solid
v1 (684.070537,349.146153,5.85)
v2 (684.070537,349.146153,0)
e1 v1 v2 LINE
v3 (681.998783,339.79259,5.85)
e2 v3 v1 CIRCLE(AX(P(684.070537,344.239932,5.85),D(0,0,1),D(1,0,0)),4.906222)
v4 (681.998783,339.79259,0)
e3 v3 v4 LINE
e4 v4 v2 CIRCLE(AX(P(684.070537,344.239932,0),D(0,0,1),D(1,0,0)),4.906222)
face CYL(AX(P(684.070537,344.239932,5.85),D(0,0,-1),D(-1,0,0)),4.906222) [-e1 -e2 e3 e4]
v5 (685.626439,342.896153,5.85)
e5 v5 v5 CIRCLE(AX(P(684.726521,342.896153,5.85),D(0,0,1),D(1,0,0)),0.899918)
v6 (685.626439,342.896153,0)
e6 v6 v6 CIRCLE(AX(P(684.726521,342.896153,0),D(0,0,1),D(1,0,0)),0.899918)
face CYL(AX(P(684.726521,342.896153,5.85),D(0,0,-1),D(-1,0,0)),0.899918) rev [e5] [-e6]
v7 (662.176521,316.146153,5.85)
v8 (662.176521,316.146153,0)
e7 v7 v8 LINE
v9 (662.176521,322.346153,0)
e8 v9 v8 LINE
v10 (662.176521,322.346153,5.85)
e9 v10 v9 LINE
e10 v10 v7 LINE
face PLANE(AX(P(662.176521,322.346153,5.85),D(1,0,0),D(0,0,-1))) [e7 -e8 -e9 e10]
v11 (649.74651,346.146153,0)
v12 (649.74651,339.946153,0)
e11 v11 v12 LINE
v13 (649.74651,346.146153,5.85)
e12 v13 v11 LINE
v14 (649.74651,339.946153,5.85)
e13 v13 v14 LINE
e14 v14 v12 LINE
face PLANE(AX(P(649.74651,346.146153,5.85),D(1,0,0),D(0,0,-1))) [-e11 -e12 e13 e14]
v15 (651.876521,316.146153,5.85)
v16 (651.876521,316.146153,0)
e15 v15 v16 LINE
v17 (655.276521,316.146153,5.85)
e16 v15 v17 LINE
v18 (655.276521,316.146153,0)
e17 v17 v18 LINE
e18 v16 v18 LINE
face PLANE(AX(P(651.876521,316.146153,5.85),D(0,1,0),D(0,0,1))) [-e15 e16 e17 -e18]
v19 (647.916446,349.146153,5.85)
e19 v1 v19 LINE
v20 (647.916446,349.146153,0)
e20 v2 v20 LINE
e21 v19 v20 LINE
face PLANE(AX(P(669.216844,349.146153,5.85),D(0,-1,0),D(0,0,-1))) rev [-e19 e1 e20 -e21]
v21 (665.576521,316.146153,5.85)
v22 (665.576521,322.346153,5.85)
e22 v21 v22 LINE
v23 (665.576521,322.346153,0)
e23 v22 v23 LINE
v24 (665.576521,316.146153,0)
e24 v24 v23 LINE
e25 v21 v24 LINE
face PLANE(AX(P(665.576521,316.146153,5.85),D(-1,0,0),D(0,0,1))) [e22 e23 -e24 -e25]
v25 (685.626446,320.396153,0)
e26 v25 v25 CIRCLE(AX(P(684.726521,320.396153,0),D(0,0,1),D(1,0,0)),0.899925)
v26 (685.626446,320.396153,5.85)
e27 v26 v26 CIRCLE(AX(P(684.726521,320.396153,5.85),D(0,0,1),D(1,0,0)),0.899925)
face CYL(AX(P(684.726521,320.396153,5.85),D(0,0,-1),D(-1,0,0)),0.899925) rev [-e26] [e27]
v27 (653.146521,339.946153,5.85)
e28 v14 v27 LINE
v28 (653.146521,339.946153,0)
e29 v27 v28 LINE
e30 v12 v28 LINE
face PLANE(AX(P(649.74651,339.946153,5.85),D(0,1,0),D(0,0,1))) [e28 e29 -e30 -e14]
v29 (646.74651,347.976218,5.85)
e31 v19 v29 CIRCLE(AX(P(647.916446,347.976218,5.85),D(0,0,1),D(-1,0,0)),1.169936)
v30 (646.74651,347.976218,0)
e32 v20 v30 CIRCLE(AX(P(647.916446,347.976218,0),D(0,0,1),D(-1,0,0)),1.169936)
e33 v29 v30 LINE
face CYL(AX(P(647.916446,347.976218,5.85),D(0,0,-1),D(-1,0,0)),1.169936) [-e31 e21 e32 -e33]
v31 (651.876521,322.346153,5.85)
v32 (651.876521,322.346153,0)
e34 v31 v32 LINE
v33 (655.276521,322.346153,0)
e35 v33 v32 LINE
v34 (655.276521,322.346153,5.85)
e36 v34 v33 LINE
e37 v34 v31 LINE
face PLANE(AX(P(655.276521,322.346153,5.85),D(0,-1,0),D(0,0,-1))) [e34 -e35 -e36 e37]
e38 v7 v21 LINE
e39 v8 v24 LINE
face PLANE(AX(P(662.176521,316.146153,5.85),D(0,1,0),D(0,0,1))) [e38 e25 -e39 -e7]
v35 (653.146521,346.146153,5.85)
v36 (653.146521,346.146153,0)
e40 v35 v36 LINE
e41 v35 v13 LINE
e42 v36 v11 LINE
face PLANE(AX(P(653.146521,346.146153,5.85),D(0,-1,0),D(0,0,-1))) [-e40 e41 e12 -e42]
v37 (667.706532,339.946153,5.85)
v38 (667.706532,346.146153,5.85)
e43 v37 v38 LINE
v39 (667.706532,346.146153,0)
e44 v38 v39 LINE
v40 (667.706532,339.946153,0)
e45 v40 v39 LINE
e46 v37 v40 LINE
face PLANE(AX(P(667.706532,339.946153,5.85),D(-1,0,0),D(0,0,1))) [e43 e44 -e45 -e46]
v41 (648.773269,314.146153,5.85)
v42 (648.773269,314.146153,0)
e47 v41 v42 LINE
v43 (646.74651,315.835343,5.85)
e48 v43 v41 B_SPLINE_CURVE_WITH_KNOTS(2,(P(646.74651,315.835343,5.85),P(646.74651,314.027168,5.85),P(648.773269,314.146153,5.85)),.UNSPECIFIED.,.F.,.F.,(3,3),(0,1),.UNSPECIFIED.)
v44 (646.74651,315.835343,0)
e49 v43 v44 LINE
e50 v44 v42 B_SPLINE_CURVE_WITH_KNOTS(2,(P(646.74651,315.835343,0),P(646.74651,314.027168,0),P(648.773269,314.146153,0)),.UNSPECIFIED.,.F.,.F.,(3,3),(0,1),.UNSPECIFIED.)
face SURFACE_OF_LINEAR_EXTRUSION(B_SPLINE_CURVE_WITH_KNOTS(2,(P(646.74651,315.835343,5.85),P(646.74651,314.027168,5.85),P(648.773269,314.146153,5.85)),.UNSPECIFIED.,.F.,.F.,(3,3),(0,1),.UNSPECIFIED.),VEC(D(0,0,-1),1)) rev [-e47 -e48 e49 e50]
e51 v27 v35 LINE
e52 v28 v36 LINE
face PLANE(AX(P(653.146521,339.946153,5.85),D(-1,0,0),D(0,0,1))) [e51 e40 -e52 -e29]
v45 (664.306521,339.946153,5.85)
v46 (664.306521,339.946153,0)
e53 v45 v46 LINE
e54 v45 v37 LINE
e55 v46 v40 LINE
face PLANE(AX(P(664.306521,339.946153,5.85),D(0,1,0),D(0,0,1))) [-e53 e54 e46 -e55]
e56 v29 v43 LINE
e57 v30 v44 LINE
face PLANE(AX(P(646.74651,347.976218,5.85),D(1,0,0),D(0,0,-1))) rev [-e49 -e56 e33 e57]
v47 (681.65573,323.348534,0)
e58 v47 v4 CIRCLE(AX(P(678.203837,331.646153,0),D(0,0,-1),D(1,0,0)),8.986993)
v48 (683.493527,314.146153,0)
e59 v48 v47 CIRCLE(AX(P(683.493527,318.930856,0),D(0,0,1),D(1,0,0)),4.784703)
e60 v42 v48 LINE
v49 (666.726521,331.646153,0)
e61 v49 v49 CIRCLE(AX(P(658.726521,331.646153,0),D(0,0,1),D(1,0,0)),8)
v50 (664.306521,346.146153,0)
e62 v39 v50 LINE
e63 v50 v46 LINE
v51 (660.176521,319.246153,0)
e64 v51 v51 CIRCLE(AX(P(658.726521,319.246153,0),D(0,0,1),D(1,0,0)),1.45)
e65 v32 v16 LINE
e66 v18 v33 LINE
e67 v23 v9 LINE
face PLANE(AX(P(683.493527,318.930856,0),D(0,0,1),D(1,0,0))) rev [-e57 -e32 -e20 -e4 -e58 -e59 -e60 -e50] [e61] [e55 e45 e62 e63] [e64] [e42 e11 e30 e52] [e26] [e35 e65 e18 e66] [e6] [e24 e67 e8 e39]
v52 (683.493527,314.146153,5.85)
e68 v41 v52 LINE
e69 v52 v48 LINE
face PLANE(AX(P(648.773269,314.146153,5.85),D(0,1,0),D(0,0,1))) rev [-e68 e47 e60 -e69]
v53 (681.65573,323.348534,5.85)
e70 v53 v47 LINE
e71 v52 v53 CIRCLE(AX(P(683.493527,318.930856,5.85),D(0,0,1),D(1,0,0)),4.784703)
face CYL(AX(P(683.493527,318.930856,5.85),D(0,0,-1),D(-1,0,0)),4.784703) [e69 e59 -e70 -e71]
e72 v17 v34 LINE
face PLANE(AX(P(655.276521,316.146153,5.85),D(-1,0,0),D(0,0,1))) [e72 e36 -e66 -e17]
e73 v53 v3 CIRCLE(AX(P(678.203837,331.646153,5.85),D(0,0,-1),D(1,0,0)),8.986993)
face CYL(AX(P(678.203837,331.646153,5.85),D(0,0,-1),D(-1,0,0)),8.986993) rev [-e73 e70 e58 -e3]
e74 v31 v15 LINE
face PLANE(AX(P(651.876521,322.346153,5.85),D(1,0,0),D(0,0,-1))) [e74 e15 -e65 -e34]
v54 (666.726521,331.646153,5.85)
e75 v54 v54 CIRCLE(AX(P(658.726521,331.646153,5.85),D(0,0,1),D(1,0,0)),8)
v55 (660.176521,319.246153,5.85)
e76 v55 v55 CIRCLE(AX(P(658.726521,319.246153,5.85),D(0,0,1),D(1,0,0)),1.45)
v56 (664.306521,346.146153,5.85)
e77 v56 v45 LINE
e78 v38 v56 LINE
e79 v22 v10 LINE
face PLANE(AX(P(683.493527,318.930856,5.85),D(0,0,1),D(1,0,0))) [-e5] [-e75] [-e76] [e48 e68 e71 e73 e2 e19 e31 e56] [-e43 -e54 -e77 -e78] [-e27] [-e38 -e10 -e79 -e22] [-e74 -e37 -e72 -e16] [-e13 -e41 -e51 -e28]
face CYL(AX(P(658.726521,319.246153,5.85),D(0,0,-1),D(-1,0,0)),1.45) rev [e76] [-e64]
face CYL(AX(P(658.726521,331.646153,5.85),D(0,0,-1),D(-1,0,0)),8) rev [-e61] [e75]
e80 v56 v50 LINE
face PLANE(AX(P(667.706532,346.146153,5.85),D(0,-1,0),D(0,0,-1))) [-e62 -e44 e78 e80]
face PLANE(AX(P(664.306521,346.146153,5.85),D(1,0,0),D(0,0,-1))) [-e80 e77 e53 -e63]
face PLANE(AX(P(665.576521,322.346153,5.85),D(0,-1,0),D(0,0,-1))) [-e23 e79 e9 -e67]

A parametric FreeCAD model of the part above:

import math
import FreeCAD as App
import Part
import Sketcher

V = App.Vector


def add_polygon(sketch, points):
    """Adds a closed chain of lines whose ends are joined by coincident constraints."""
    first, n = sketch.GeometryCount, len(points)
    for a, b in zip(points, points[1:] + points[:1]):
        sketch.addGeometry(Part.LineSegment(App.Vector(*a, 0), App.Vector(*b, 0)), False)
    for i in range(n):
        sketch.addConstraint(Sketcher.Constraint("Coincident", first + i, 2, first + (i + 1) % n, 1))

doc = App.newDocument("Part")
body = doc.addObject("PartDesign::Body", "Body")

# Sketch on XY plane
sketch1 = body.newObject("Sketcher::SketchObject", "Sketch")
sketch1.AttachmentSupport = (doc.getObject("XY_Plane"), [""])
sketch1.MapMode = "FlatFace"
sketch1.addGeometry(Part.ArcOfCircle(Part.Circle(V(647.916446, 347.976218, 0), V(0, 0, 1), 1.169936), math.radians(90), math.radians(180)), False)  # 0
sketch1.addGeometry(Part.LineSegment(V(646.74651, 347.976218, 0), V(646.74651, 315.835343, 0)), False)  # 1
sketch1.addGeometry(Part.BSplineCurve([V(646.74651, 315.835343, 0), V(646.74651, 314.027168, 0), V(648.773269, 314.146153, 0)], [3, 3], [0, 1], False, 2, [1, 1, 1], False), False)  # 2
sketch1.addGeometry(Part.LineSegment(V(648.773269, 314.146153, 0), V(683.493527, 314.146153, 0)), False)  # 3
sketch1.addGeometry(Part.ArcOfCircle(Part.Circle(V(683.493527, 318.930856, 0), V(0, 0, 1), 4.784703), math.radians(-90), math.radians(112.587796)), False)  # 4
sketch1.addGeometry(Part.ArcOfCircle(Part.Circle(V(678.203837, 331.646153, 0), V(0, 0, 1), 8.986993), math.radians(65.02196), math.radians(292.587796)), False)  # 5
sketch1.addGeometry(Part.ArcOfCircle(Part.Circle(V(684.070537, 344.239932, 0), V(0, 0, 1), 4.906222), math.radians(-114.97804), math.radians(90)), False)  # 6
sketch1.addGeometry(Part.LineSegment(V(684.070537, 349.146153, 0), V(647.916446, 349.146153, 0)), False)  # 7
add_polygon(sketch1, [(655.276521, 316.146153), (651.876521, 316.146153), (651.876521, 322.346153), (655.276521, 322.346153)])  # lines 8-11
sketch1.addGeometry(Part.Circle(V(658.726521, 319.246153, 0), V(0, 0, 1), 1.45), False)  # 12
add_polygon(sketch1, [(665.576521, 316.146153), (662.176521, 316.146153), (662.176521, 322.346153), (665.576521, 322.346153)])  # lines 13-16
sketch1.addGeometry(Part.Circle(V(684.726521, 320.396153, 0), V(0, 0, 1), 0.899925), False)  # 17
sketch1.addGeometry(Part.Circle(V(658.726521, 331.646153, 0), V(0, 0, 1), 8), False)  # 18
add_polygon(sketch1, [(653.146521, 339.946153), (649.74651, 339.946153), (649.74651, 346.146153), (653.146521, 346.146153)])  # lines 19-22
add_polygon(sketch1, [(667.706532, 339.946153), (664.306521, 339.946153), (664.306521, 346.146153), (667.706532, 346.146153)])  # lines 23-26
sketch1.addGeometry(Part.Circle(V(684.726521, 342.896153, 0), V(0, 0, 1), 0.899918), False)  # 27
sketch1.addConstraint([
    Sketcher.Constraint("Block", 2),
    Sketcher.Constraint("Tangent", 0, 2, 1, 1),
    Sketcher.Constraint("Coincident", 1, 2, 2, 1),
    Sketcher.Constraint("Coincident", 2, 2, 3, 1),
    Sketcher.Constraint("Tangent", 3, 2, 4, 1),
    Sketcher.Constraint("Tangent", 4, 2, 5, 2),
    Sketcher.Constraint("Tangent", 5, 1, 6, 1),
    Sketcher.Constraint("Tangent", 6, 2, 7, 1),
    Sketcher.Constraint("Tangent", 7, 2, 0, 1),
    Sketcher.Constraint("Vertical", 1),
    Sketcher.Constraint("Horizontal", 3),
    Sketcher.Constraint("Horizontal", 7),
    Sketcher.Constraint("Horizontal", 8),
    Sketcher.Constraint("Vertical", 9),
    Sketcher.Constraint("Horizontal", 10),
    Sketcher.Constraint("Vertical", 11),
    Sketcher.Constraint("Horizontal", 13),
    Sketcher.Constraint("Vertical", 14),
    Sketcher.Constraint("Horizontal", 15),
    Sketcher.Constraint("Vertical", 16),
    Sketcher.Constraint("Horizontal", 19),
    Sketcher.Constraint("Vertical", 20),
    Sketcher.Constraint("Horizontal", 21),
    Sketcher.Constraint("Vertical", 22),
    Sketcher.Constraint("Horizontal", 23),
    Sketcher.Constraint("Vertical", 24),
    Sketcher.Constraint("Horizontal", 25),
    Sketcher.Constraint("Vertical", 26),
    Sketcher.Constraint("Horizontal", 5, 3, 18, 3),
    Sketcher.Constraint("Horizontal", 11, 2, 13, 2),
    Sketcher.Constraint("Horizontal", 10, 2, 14, 2),
    Sketcher.Constraint("Horizontal", 22, 2, 23, 2),
    Sketcher.Constraint("Horizontal", 21, 2, 24, 2),
    Sketcher.Constraint("Vertical", 12, 3, 18, 3),
    Sketcher.Constraint("Vertical", 17, 3, 27, 3),
    Sketcher.Constraint("Equal", 10, 13),
    Sketcher.Constraint("Equal", 21, 23),
    Sketcher.Constraint("Equal", 16, 20),
    Sketcher.Constraint("Diameter", 18, 16.0),
    Sketcher.Constraint("Diameter", 12, 2.9),
    Sketcher.Constraint("DistanceX", 8, 2, 8, 1, 3.4),
    Sketcher.Constraint("DistanceY", 9, 1, 9, 2, 6.2),
    Sketcher.Constraint("DistanceX", 12, 3, 17, 3, 26.0),
    Sketcher.Constraint("DistanceX", 0, 2, 19, 2, 3.0),
    Sketcher.Constraint("DistanceY", 20, 2, 7, 2, 3.0),
    Sketcher.Constraint("DistanceY", 12, 3, 5, 3, 12.4),
    Sketcher.Constraint("DistanceY", 17, 3, 27, 3, 22.5),
    Sketcher.Constraint("DistanceY", 3, 2, 5, 3, 17.5),
    Sketcher.Constraint("DistanceY", 5, 3, 6, 2, 17.5),
    Sketcher.Constraint("DistanceY", 8, 2, 12, 3, 3.1),
    Sketcher.Constraint("DistanceX", 11, 2, 13, 2, 6.9),
    Sketcher.Constraint("Diameter", 17, 1.79985),
    Sketcher.Constraint("Radius", 6, 4.906222),
    Sketcher.Constraint("DistanceY", 17, 3, 5, 3, 11.25),
    Sketcher.Constraint("DistanceX", 8, 2, 12, 3, 6.85),
    Sketcher.Constraint("DistanceX", 22, 2, 18, 3, 5.58),
    Sketcher.Constraint("DistanceX", 18, 3, 23, 2, 5.58),
    Sketcher.Constraint("Diameter", 27, 1.799836),
    Sketcher.Constraint("Radius", 0, 1.169936),
    Sketcher.Constraint("Radius", 4, 4.784703),
    Sketcher.Constraint("Radius", 5, 8.986993),
    Sketcher.Constraint("DistanceX", 3, 1, 3, 2, 34.720259),
    Sketcher.Constraint("DistanceX", 19, 2, 19, 1, 3.400011),
])
pad1 = body.newObject("PartDesign::Pad", "Pad")
pad1.Profile = sketch1
pad1.Length = 5.85

doc.recompute()
